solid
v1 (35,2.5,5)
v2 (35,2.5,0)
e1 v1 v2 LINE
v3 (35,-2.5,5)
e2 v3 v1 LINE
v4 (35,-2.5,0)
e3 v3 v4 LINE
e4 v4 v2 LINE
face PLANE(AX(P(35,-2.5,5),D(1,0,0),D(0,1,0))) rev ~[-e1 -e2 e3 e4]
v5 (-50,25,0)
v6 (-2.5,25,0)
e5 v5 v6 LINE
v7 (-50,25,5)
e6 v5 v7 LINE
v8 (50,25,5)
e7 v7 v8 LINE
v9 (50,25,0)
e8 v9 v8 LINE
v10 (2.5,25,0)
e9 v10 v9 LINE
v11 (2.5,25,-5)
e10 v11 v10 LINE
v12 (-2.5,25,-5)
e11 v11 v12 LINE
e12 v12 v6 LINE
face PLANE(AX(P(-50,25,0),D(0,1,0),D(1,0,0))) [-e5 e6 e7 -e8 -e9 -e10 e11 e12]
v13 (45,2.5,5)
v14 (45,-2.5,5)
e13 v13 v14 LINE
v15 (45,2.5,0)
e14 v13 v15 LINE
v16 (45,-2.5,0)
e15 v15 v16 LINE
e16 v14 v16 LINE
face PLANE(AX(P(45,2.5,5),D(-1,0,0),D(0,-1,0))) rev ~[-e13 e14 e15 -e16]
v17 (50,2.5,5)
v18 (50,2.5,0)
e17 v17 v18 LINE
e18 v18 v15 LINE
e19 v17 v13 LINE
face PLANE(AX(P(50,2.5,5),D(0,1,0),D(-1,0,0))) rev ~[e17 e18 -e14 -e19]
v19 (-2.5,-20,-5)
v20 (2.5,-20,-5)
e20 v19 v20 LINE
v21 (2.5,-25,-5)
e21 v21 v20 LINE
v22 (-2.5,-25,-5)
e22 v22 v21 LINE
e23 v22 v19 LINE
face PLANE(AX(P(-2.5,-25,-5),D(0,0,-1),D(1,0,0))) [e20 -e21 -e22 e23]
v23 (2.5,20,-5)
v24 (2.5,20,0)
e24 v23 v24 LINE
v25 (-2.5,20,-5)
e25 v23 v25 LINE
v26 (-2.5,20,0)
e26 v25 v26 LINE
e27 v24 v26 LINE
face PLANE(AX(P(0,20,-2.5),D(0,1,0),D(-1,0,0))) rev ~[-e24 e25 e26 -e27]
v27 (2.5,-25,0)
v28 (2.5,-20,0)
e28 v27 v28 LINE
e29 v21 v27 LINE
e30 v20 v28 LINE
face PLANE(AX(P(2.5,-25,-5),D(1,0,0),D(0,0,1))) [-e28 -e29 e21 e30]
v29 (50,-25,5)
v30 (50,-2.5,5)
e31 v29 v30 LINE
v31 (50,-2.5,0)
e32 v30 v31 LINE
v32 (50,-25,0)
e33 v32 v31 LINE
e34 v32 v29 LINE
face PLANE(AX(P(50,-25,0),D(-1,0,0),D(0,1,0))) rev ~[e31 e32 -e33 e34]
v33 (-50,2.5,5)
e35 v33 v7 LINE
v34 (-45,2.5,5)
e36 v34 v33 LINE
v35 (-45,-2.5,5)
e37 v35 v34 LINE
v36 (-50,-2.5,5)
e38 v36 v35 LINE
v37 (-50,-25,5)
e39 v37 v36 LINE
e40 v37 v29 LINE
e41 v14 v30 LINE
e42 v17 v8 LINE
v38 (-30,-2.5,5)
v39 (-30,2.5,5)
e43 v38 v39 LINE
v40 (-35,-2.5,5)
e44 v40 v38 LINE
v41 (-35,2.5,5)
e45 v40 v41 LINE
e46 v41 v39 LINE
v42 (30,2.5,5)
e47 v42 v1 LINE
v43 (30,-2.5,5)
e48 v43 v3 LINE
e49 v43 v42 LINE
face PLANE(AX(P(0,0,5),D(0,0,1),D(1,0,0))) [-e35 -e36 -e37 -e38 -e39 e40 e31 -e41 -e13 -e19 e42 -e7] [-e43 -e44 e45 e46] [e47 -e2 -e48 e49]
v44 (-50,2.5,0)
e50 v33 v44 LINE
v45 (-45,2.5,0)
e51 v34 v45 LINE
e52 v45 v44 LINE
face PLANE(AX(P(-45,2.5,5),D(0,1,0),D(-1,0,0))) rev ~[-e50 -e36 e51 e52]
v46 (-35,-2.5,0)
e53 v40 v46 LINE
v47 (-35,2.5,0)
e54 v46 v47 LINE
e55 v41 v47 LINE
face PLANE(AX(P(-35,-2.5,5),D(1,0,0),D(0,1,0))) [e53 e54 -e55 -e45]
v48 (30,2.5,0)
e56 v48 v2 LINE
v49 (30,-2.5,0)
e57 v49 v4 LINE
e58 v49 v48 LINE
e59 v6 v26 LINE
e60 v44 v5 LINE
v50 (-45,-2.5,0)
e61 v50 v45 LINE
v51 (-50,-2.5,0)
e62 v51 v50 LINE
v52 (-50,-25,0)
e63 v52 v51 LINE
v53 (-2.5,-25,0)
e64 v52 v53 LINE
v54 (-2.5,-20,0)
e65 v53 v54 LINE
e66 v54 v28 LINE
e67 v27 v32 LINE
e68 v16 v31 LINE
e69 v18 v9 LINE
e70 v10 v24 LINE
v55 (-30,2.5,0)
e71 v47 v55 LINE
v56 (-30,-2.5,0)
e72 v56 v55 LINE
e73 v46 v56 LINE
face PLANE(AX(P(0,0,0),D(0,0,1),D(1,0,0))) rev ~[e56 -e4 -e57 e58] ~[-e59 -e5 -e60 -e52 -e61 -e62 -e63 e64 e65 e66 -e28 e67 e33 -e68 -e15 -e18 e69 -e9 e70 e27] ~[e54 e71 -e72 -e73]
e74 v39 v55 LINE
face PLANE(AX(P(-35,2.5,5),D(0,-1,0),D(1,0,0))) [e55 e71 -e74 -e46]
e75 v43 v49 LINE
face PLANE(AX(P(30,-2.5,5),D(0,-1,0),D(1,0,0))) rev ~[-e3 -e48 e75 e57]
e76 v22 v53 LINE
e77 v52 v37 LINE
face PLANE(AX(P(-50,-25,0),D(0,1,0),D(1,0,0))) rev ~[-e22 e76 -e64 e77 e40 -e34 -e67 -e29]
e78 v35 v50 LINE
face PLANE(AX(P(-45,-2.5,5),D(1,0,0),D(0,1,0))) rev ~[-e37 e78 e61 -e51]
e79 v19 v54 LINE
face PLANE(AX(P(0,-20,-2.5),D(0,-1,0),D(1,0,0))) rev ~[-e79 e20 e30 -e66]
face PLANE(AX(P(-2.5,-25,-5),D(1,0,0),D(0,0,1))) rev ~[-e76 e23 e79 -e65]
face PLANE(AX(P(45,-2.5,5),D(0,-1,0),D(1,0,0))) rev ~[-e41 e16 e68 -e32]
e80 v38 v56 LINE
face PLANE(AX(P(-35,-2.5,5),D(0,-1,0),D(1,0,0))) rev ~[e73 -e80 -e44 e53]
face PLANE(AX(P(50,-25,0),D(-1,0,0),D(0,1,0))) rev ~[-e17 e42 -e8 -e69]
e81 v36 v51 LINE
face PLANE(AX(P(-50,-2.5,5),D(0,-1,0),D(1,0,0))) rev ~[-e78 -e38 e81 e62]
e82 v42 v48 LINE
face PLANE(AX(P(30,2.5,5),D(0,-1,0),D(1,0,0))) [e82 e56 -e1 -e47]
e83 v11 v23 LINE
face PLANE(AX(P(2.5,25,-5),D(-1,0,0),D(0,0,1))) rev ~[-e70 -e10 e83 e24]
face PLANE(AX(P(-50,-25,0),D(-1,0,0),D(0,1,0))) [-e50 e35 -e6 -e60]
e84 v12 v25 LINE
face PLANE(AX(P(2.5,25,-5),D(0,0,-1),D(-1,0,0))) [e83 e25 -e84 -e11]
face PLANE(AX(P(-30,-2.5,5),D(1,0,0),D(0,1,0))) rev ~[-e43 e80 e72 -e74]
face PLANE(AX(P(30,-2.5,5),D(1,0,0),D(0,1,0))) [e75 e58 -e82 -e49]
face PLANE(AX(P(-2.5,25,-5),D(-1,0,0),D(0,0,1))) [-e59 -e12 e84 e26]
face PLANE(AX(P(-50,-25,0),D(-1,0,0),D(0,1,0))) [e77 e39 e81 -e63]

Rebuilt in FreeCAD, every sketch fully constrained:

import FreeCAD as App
import Part
import Sketcher

V = App.Vector
Q = App.Units.Quantity


def add_polygon(sketch, points):
    """Adds a closed chain of lines whose ends are joined by coincident constraints."""
    first, n = sketch.GeometryCount, len(points)
    for a, b in zip(points, points[1:] + points[:1]):
        sketch.addGeometry(Part.LineSegment(App.Vector(*a, 0), App.Vector(*b, 0)), False)
    for i in range(n):
        sketch.addConstraint(Sketcher.Constraint("Coincident", first + i, 2, first + (i + 1) % n, 1))

doc = App.newDocument("Part")
body = doc.addObject("PartDesign::Body", "Body")

# Sketch on XY plane
sketch1 = body.newObject("Sketcher::SketchObject", "Sketch")
sketch1.AttachmentSupport = (doc.getObject("XY_Plane"), [""])
sketch1.MapMode = "FlatFace"
add_polygon(sketch1, [(-50, 25), (-50, -25), (50, -25), (50, 25)])  # lines 0-3
sketch1.addConstraint([
    Sketcher.Constraint("Vertical", 0),
    Sketcher.Constraint("Horizontal", 1),
    Sketcher.Constraint("Vertical", 2),
    Sketcher.Constraint("Horizontal", 3),
    Sketcher.Constraint("Symmetric", 0, 2, 2, 2, -1, 1),
    Sketcher.Constraint("DistanceX", 1, 1, 1, 2, Q("100 mm")),
    Sketcher.Constraint("DistanceY", 0, 2, 0, 1, Q("50 mm")),
])
pad1 = body.newObject("PartDesign::Pad", "Pad")
pad1.Profile = sketch1
pad1.Length = 5

# Sketch on XZ plane
sketch2 = body.newObject("Sketcher::SketchObject", "Sketch001")
sketch2.AttachmentSupport = (doc.getObject("XZ_Plane"), [""])
sketch2.MapMode = "FlatFace"
sketch2.AttachmentOffset = App.Placement(V(0, 0, -25), App.Rotation())
add_polygon(sketch2, [(2, 0), (2, -5), (-2, -5), (-2, 0)])  # lines 0-3
sketch2.addConstraint([
    Sketcher.Constraint("Vertical", 0),
    Sketcher.Constraint("Horizontal", 1),
    Sketcher.Constraint("Vertical", 2),
    Sketcher.Constraint("Horizontal", 3),
    Sketcher.Constraint("Symmetric", 2, 2, 3, 2, -1, 1),
    Sketcher.Constraint("Equal", 3, 0),
    Sketcher.Constraint("DistanceX", 1, 2, 1, 1, Q("5 mm")),
])
pad2 = body.newObject("PartDesign::Pad", "Pad001")
pad2.Profile = sketch2
pad2.Length = 5

# Sketch on XZ plane
sketch3 = body.newObject("Sketcher::SketchObject", "Sketch002")
sketch3.AttachmentSupport = (doc.getObject("XZ_Plane"), [""])
sketch3.MapMode = "FlatFace"
sketch3.AttachmentOffset = App.Placement(V(0, 0, 25), App.Rotation())
add_polygon(sketch3, [(-2, 0), (-2, -5), (2, -5), (2, 0)])  # lines 0-3
sketch3.addConstraint([
    Sketcher.Constraint("Vertical", 0),
    Sketcher.Constraint("Horizontal", 1),
    Sketcher.Constraint("Vertical", 2),
    Sketcher.Constraint("Horizontal", 3),
    Sketcher.Constraint("Symmetric", 2, 2, 3, 2, -1, 1),
    Sketcher.Constraint("Equal", 3, 0),
    Sketcher.Constraint("DistanceX", 1, 1, 1, 2, Q("5 mm")),
])
pad3 = body.newObject("PartDesign::Pad", "Pad002")
pad3.Profile = sketch3
pad3.Length = 5
pad3.Reversed = True

# Sketch on XY plane
sketch4 = body.newObject("Sketcher::SketchObject", "Sketch003")
sketch4.AttachmentSupport = (doc.getObject("XY_Plane"), [""])
sketch4.MapMode = "FlatFace"
sketch4.AttachmentOffset = App.Placement(V(0, 0, 5), App.Rotation())
add_polygon(sketch4, [(-50, 2), (-50, -2), (-45, -2), (-45, 2)])  # lines 0-3
add_polygon(sketch4, [(-35, 2), (-35, -2), (-30, -2), (-30, 2)])  # lines 4-7
add_polygon(sketch4, [(30, 2), (30, -2), (35, -2), (35, 2)])  # lines 8-11
add_polygon(sketch4, [(45, 2), (45, -2), (50, -2), (50, 2)])  # lines 12-15
sketch4.addConstraint([
    Sketcher.Constraint("Vertical", 0),
    Sketcher.Constraint("Horizontal", 1),
    Sketcher.Constraint("Vertical", 2),
    Sketcher.Constraint("Horizontal", 3),
    Sketcher.Constraint("Vertical", 4),
    Sketcher.Constraint("Horizontal", 5),
    Sketcher.Constraint("Vertical", 6),
    Sketcher.Constraint("Horizontal", 7),
    Sketcher.Constraint("Vertical", 8),
    Sketcher.Constraint("Horizontal", 9),
    Sketcher.Constraint("Vertical", 10),
    Sketcher.Constraint("Horizontal", 11),
    Sketcher.Constraint("Vertical", 12),
    Sketcher.Constraint("Horizontal", 13),
    Sketcher.Constraint("Vertical", 14),
    Sketcher.Constraint("Horizontal", 15),
    Sketcher.Constraint("Symmetric", 6, 2, 8, 2, -1, 1),
    Sketcher.Constraint("Symmetric", 4, 2, 10, 2, -1, 1),
    Sketcher.Constraint("Symmetric", 2, 2, 12, 2, -1, 1),
    Sketcher.Constraint("Symmetric", 0, 2, 14, 2, -1, 1),
    Sketcher.Constraint("Horizontal", 1, 2, 4, 2),
    Sketcher.Constraint("Horizontal", 3, 2, 6, 2),
    Sketcher.Constraint("Horizontal", 5, 2, 8, 2),
    Sketcher.Constraint("Equal", 3, 5),
    Sketcher.Constraint("Equal", 15, 0),
    Sketcher.Constraint("DistanceX", 1, 1, 1, 2, Q("5 mm")),
    Sketcher.Constraint("DistanceX", 0, 2, -1, 1, Q("50 mm")),
    Sketcher.Constraint("DistanceX", 4, 2, -1, 1, Q("35 mm")),
])
pocket1 = body.newObject("PartDesign::Pocket", "Pocket")
pocket1.Profile = sketch4
pocket1.Type = "ThroughAll"

doc.recompute()
